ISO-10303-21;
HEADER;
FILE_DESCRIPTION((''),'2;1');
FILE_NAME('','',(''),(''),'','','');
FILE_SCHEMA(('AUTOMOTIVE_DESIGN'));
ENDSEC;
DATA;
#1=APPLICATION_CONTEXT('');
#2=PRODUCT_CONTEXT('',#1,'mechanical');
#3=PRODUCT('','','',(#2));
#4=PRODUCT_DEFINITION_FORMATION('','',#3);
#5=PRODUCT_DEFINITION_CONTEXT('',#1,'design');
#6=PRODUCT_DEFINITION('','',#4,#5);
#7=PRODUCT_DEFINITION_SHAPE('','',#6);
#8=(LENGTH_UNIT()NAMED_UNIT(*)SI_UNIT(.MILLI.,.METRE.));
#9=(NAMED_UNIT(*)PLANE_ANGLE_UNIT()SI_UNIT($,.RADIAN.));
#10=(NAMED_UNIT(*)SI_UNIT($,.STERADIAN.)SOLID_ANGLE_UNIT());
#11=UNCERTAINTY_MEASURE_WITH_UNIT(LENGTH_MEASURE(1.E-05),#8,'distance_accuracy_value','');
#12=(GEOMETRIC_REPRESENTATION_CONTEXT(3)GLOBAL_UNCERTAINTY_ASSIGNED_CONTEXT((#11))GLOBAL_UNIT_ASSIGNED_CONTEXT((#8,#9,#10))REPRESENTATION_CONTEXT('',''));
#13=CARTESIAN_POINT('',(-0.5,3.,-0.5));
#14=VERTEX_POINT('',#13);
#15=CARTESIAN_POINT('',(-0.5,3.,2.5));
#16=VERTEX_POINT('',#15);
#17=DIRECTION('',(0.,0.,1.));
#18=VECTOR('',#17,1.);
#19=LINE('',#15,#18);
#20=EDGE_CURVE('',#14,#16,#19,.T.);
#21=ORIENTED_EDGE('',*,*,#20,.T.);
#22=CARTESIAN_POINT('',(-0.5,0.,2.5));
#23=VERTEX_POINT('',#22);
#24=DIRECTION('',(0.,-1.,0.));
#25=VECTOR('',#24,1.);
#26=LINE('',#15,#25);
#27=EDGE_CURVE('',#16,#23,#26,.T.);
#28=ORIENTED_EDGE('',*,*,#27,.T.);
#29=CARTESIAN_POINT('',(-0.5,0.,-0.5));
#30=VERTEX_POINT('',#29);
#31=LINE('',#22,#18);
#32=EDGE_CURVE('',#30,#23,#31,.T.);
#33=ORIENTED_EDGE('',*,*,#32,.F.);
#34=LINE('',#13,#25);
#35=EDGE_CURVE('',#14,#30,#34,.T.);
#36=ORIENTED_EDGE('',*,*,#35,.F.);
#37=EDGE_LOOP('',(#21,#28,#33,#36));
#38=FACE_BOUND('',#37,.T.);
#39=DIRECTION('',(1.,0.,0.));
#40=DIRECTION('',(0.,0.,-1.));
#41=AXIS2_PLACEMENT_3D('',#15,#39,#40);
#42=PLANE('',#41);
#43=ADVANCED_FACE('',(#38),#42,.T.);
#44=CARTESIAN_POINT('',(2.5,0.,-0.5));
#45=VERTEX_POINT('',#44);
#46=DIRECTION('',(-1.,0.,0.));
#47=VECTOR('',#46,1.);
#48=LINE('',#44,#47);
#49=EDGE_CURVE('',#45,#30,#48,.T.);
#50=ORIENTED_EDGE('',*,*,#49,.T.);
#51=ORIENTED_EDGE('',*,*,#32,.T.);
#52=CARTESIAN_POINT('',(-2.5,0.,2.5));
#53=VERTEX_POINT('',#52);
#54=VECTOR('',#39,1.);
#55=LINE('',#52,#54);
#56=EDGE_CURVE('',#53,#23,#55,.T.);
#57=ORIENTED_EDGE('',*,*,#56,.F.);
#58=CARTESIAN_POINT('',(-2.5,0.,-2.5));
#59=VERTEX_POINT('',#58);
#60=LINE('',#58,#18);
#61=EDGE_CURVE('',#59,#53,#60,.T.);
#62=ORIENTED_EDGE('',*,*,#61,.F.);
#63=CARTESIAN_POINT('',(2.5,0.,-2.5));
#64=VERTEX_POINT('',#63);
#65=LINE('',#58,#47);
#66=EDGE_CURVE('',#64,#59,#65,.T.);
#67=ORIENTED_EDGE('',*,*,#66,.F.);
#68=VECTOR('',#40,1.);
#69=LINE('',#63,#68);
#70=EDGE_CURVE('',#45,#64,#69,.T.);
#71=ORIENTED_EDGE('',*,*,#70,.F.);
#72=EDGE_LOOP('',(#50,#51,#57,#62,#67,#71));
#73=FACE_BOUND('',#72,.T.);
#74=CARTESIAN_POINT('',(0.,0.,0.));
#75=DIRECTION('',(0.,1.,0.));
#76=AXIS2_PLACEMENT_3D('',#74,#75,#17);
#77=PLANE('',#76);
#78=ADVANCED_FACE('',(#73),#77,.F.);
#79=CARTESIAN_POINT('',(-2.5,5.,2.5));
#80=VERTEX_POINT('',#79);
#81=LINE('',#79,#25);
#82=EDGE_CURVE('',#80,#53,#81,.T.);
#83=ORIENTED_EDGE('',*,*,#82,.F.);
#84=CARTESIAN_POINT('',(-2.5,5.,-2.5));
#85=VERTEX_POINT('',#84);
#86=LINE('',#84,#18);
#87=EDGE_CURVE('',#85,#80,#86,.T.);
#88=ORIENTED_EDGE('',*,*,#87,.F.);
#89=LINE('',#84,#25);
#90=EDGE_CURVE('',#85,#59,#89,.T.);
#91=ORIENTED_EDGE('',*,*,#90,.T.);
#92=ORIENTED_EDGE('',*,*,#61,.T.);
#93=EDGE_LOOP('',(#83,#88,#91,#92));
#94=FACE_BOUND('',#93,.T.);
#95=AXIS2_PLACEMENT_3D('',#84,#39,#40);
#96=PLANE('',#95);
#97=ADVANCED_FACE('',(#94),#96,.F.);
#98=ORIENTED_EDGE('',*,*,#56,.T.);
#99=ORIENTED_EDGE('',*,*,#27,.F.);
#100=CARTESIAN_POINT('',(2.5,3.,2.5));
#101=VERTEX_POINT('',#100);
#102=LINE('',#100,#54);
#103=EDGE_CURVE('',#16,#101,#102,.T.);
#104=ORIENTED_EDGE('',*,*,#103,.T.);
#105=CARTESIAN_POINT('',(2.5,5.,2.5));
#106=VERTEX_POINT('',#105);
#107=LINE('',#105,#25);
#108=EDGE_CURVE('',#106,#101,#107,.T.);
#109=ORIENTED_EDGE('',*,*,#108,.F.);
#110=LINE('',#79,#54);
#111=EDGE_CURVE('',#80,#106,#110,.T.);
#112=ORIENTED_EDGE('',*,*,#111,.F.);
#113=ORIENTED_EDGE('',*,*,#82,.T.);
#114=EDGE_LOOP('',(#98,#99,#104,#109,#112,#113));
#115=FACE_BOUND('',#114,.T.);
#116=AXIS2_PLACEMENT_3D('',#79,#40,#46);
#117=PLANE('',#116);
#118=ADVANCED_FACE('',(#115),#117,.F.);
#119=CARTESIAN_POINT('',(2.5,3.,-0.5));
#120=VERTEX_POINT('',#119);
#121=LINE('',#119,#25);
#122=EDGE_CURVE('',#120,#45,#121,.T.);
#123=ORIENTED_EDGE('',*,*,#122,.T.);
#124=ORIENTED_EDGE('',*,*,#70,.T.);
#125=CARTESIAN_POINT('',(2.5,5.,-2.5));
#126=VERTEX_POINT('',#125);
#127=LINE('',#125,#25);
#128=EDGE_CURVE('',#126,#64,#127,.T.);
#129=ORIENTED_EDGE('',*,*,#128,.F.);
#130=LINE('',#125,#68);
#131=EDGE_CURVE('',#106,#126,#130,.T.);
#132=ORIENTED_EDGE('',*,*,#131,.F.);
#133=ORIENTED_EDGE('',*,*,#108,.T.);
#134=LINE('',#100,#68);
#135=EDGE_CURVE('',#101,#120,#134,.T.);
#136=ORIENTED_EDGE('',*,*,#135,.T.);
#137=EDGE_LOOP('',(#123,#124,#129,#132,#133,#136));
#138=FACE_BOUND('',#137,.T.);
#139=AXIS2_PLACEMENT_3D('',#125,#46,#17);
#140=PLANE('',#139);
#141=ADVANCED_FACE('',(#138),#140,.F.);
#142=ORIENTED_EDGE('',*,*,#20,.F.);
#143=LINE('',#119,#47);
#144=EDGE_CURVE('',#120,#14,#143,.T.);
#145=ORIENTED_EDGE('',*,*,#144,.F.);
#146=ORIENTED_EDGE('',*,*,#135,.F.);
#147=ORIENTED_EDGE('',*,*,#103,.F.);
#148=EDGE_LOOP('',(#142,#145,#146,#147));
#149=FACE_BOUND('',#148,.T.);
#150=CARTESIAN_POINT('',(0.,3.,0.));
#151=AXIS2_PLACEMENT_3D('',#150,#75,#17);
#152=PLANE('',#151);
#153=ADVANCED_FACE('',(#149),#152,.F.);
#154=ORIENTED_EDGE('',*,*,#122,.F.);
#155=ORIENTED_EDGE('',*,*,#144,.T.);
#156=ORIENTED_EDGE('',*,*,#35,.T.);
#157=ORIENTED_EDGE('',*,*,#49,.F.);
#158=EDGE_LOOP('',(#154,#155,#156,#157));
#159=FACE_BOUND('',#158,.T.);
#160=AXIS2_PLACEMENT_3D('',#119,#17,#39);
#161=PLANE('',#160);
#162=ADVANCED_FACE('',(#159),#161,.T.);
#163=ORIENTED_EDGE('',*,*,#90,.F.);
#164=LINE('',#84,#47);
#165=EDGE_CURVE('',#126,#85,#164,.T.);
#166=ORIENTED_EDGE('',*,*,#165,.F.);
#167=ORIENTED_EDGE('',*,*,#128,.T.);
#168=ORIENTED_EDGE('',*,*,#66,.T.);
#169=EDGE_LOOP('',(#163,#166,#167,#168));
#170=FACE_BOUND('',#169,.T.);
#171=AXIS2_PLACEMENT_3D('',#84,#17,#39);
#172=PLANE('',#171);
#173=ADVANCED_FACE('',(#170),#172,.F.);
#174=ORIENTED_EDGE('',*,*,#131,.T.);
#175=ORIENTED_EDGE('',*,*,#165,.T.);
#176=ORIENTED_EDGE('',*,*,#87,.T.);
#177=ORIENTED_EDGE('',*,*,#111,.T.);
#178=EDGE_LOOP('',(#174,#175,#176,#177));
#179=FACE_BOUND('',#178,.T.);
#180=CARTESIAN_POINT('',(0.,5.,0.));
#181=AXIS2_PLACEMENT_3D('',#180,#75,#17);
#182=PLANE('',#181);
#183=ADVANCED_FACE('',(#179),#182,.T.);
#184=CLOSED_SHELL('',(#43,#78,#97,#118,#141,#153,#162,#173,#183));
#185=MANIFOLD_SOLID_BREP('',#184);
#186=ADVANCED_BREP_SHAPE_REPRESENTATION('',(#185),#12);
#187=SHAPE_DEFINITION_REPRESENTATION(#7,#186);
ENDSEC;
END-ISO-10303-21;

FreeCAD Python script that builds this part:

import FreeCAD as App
import Part
import Sketcher

V = App.Vector
Q = App.Units.Quantity

doc = App.newDocument("Part")
body = doc.addObject("PartDesign::Body", "Body")

# Sketch on XZ plane
sketch1 = body.newObject("Sketcher::SketchObject", "Sketch")
sketch1.AttachmentSupport = (doc.getObject("XZ_Plane"), [""])
sketch1.MapMode = "FlatFace"
sketch1.addGeometry([
    Part.LineSegment(V(-2, -2, 0), V(-2, 2, 0)),
    Part.LineSegment(V(-2, 2, 0), V(2, 2, 0)),
    Part.LineSegment(V(2, 2, 0), V(2, -2, 0)),
    Part.LineSegment(V(2, -2, 0), V(-2, -2, 0)),
], False)
sketch1.addConstraint([
    Sketcher.Constraint("Coincident", 0, 2, 1, 1),
    Sketcher.Constraint("Coincident", 1, 2, 2, 1),
    Sketcher.Constraint("Coincident", 2, 2, 3, 1),
    Sketcher.Constraint("Coincident", 3, 2, 0, 1),
    Sketcher.Constraint("Vertical", 0),
    Sketcher.Constraint("Horizontal", 1),
    Sketcher.Constraint("Vertical", 2),
    Sketcher.Constraint("Horizontal", 3),
    Sketcher.Constraint("Symmetric", 0, 2, 2, 2, -1, 1),
    Sketcher.Constraint("Equal", 3, 0),
    Sketcher.Constraint("DistanceX", 1, 1, 1, 2, Q("5 mm")),
])
pad1 = body.newObject("PartDesign::Pad", "Pad")
pad1.Profile = sketch1
pad1.Length = 5
pad1.Reversed = True

# Sketch on XZ plane
sketch2 = body.newObject("Sketcher::SketchObject", "Sketch001")
sketch2.AttachmentSupport = (doc.getObject("XZ_Plane"), [""])
sketch2.MapMode = "FlatFace"
sketch2.addGeometry([
    Part.LineSegment(V(-0.5, -0.5, 0), V(-0.5, 2.5, 0)),
    Part.LineSegment(V(-0.5, 2.5, 0), V(2.5, 2.5, 0)),
    Part.LineSegment(V(2.5, 2.5, 0), V(2.5, -0.5, 0)),
    Part.LineSegment(V(2.5, -0.5, 0), V(-0.5, -0.5, 0)),
], False)
sketch2.addConstraint([
    Sketcher.Constraint("Coincident", 0, 2, 1, 1),
    Sketcher.Constraint("Coincident", 1, 2, 2, 1),
    Sketcher.Constraint("Coincident", 2, 2, 3, 1),
    Sketcher.Constraint("Coincident", 3, 2, 0, 1),
    Sketcher.Constraint("Vertical", 0),
    Sketcher.Constraint("Horizontal", 1),
    Sketcher.Constraint("Vertical", 2),
    Sketcher.Constraint("Horizontal", 3),
    Sketcher.Constraint("Equal", 3, 0),
    Sketcher.Constraint("DistanceX", 1, 1, 1, 2, Q("3 mm")),
    Sketcher.Constraint("DistanceX", 0, 2, -1, 1, Q("0.5 mm")),
    Sketcher.Constraint("DistanceY", -1, 1, 0, 2, Q("2.5 mm")),
])
pocket1 = body.newObject("PartDesign::Pocket", "Pocket")
pocket1.Profile = sketch2
pocket1.Length = 3

doc.recompute()
